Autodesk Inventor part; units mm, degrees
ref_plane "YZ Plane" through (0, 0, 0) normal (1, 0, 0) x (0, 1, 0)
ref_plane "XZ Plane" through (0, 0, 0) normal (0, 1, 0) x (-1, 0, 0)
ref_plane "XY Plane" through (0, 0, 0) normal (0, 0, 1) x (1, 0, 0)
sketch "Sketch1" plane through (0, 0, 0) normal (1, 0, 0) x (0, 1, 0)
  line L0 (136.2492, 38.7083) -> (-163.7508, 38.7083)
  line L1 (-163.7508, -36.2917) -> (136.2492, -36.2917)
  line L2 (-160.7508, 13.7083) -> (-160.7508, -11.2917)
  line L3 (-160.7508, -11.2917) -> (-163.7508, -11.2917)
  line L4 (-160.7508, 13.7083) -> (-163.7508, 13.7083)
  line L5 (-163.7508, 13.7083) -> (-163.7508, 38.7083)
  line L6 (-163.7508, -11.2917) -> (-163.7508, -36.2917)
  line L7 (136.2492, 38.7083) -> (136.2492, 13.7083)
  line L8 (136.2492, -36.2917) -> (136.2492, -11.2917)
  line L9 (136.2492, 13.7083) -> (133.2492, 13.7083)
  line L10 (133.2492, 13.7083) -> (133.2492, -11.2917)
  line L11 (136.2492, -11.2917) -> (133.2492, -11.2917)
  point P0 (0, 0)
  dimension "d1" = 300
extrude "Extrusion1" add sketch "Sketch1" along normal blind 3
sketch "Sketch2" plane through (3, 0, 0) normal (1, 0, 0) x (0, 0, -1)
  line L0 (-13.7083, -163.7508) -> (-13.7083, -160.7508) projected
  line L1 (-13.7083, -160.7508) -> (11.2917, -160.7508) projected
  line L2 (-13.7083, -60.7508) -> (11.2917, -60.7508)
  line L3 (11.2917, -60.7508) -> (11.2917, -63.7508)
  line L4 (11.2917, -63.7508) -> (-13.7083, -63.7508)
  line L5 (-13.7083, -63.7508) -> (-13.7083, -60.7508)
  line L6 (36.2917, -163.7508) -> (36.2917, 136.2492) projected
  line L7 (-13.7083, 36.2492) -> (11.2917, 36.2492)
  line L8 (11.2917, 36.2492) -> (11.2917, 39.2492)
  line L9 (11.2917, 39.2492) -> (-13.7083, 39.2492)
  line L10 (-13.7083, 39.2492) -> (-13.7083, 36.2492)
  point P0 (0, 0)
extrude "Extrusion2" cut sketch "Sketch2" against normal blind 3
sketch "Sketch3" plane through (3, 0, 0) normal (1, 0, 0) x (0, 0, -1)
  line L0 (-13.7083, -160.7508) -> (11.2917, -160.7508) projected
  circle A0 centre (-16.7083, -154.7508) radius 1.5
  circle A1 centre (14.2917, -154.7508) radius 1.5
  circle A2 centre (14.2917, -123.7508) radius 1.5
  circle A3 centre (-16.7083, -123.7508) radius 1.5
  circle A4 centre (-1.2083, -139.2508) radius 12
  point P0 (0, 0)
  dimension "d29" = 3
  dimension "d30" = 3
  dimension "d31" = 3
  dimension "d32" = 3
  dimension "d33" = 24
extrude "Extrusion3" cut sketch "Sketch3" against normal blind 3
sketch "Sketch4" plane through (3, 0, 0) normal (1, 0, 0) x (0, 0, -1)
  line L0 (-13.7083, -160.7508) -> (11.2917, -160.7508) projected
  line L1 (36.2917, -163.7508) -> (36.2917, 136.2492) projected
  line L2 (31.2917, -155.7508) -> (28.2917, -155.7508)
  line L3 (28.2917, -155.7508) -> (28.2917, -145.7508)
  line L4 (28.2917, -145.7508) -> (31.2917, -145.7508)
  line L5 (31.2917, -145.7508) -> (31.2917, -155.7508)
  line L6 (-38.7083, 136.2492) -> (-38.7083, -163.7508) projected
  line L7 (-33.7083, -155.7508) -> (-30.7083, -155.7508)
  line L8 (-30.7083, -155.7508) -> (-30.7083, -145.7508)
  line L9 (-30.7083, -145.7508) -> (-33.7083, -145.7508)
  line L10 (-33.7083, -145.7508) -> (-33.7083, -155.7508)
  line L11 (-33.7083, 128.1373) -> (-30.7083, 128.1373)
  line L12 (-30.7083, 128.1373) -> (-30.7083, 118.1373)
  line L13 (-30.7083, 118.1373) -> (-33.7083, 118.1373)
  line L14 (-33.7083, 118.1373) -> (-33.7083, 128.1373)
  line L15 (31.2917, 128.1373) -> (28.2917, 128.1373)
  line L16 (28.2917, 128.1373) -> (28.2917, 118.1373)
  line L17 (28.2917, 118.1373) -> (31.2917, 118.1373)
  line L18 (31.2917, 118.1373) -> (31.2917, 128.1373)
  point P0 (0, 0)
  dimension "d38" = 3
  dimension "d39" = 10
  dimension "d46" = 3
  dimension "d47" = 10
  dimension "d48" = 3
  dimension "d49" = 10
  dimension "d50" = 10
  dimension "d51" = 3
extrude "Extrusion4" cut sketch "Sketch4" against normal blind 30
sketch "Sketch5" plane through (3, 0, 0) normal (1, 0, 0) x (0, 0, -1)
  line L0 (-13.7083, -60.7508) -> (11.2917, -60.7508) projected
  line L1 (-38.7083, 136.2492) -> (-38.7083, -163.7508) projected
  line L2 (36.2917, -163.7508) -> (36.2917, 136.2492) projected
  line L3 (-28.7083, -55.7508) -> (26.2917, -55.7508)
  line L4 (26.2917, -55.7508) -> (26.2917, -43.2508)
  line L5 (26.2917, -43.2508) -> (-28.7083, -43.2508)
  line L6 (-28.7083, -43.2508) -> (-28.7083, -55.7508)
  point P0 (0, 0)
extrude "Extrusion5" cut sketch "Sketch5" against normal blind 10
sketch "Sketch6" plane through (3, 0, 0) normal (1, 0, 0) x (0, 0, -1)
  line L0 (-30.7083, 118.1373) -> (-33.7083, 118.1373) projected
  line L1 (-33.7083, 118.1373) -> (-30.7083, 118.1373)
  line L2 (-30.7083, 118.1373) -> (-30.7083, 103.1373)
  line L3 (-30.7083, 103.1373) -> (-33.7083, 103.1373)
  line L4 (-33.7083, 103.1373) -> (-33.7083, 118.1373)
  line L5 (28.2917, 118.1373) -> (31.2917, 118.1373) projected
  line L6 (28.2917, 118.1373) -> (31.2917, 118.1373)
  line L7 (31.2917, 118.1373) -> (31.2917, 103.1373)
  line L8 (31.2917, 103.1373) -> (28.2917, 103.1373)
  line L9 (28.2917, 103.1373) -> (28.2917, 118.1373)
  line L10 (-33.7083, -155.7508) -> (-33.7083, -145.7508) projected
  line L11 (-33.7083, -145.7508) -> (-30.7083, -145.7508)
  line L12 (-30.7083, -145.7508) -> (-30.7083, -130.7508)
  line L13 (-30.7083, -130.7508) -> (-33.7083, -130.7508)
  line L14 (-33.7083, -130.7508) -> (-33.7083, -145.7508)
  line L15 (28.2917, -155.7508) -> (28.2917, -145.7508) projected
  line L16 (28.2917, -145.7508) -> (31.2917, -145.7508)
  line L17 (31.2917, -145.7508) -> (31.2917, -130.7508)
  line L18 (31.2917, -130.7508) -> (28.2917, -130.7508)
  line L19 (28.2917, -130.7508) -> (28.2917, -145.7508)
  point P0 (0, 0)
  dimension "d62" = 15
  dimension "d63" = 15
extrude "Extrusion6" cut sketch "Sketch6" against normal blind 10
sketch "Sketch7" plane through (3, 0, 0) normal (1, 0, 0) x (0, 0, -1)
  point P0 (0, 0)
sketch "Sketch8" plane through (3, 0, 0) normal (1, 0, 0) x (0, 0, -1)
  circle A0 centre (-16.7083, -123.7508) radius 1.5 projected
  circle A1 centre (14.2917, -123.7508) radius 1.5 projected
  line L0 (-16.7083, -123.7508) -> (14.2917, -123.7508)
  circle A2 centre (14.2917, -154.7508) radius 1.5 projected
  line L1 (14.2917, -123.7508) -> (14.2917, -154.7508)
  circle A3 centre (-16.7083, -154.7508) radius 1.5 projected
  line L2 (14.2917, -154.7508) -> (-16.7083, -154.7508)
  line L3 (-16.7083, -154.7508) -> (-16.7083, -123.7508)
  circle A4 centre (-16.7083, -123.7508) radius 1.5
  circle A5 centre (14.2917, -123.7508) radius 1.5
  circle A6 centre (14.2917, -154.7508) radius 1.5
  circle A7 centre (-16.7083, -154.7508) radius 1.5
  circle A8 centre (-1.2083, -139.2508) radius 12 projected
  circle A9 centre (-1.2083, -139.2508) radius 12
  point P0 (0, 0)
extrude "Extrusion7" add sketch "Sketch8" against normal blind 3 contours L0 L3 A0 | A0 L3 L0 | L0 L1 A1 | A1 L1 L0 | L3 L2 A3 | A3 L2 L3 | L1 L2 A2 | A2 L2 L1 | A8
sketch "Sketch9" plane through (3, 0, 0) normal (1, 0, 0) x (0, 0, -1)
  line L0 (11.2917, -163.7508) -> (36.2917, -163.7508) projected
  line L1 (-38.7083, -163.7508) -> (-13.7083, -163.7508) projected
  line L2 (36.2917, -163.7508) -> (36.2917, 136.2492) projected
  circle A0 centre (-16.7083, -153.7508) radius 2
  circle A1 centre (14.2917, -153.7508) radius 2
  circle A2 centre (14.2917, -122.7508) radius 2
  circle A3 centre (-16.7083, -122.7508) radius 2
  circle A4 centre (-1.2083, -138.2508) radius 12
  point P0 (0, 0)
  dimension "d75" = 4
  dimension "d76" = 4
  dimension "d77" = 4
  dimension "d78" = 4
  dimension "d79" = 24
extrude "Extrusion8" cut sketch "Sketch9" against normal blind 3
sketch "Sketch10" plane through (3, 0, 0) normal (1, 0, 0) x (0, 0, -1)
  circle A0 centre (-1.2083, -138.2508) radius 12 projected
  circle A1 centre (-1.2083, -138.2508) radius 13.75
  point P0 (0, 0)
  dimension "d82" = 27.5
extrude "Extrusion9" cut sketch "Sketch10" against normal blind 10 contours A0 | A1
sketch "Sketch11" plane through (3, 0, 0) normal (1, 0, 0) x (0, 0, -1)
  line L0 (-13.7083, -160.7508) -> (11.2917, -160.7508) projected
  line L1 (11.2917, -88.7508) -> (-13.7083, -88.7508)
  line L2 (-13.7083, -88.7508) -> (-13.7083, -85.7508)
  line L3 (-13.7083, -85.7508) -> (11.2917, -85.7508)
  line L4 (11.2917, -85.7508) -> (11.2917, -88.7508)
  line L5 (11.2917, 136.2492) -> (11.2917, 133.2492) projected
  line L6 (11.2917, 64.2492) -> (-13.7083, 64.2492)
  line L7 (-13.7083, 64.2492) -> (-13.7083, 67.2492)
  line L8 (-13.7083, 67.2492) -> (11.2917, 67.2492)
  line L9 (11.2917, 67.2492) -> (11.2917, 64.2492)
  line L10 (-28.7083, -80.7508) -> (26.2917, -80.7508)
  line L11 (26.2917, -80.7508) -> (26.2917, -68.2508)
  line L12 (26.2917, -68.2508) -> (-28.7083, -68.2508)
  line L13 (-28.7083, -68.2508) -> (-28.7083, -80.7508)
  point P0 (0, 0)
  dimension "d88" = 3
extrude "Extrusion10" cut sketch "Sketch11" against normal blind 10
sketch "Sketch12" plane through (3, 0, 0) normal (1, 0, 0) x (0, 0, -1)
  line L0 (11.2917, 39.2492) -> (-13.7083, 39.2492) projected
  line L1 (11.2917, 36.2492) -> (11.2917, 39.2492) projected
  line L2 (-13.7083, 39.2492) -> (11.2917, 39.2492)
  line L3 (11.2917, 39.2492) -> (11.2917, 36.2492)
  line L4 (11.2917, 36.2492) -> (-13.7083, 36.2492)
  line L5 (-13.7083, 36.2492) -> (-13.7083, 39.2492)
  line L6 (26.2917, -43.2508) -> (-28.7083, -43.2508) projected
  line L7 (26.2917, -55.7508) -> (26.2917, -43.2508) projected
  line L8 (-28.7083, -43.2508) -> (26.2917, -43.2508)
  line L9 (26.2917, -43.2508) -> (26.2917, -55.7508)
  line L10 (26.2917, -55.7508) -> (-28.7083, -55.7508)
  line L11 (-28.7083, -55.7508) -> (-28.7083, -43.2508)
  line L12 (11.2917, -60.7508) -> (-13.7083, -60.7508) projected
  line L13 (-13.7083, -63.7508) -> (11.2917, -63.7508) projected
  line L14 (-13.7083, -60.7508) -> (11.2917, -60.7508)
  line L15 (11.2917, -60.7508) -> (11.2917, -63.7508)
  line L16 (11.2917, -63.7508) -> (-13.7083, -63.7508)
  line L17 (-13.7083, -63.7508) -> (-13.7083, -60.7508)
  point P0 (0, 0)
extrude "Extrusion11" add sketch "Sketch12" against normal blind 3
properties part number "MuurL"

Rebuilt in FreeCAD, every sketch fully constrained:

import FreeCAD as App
import Part
import Sketcher

V = App.Vector

doc = App.newDocument("Part")
body = doc.addObject("PartDesign::Body", "Body")

# Sketch on YZ plane
sketch1 = doc.addObject("Sketcher::SketchObject", "Sketch")
body.addObject(sketch1)
sketch1.AttachmentSupport = (doc.YZ_Plane, [""])
sketch1.MapMode = "FlatFace"
sketch1.addGeometry(Part.LineSegment(V(136.2492, 13.7083, 0), V(136.2492, 38.7083, 0)), False)
sketch1.addGeometry(Part.LineSegment(V(136.2492, 38.7083, 0), V(-163.7508, 38.7083, 0)), False)
sketch1.addGeometry(Part.LineSegment(V(-163.7508, 38.7083, 0), V(-163.7508, 13.7083, 0)), False)
sketch1.addGeometry(Part.LineSegment(V(-163.7508, 13.7083, 0), V(-160.7508, 13.7083, 0)), False)
sketch1.addGeometry(Part.LineSegment(V(-160.7508, 13.7083, 0), V(-160.7508, -11.2917, 0)), False)
sketch1.addGeometry(Part.LineSegment(V(-160.7508, -11.2917, 0), V(-163.7508, -11.2917, 0)), False)
sketch1.addGeometry(Part.LineSegment(V(-163.7508, -11.2917, 0), V(-163.7508, -36.2917, 0)), False)
sketch1.addGeometry(Part.LineSegment(V(-163.7508, -36.2917, 0), V(136.2492, -36.2917, 0)), False)
sketch1.addGeometry(Part.LineSegment(V(136.2492, -36.2917, 0), V(136.2492, -11.2917, 0)), False)
sketch1.addGeometry(Part.LineSegment(V(136.2492, -11.2917, 0), V(133.2492, -11.2917, 0)), False)
sketch1.addGeometry(Part.LineSegment(V(133.2492, -11.2917, 0), V(133.2492, 13.7083, 0)), False)
sketch1.addGeometry(Part.LineSegment(V(133.2492, 13.7083, 0), V(136.2492, 13.7083, 0)), False)
sketch1.addConstraint(Sketcher.Constraint("Coincident", 0, 2, 1, 1))
sketch1.addConstraint(Sketcher.Constraint("Coincident", 1, 2, 2, 1))
sketch1.addConstraint(Sketcher.Constraint("Coincident", 2, 2, 3, 1))
sketch1.addConstraint(Sketcher.Constraint("Coincident", 3, 2, 4, 1))
sketch1.addConstraint(Sketcher.Constraint("Coincident", 4, 2, 5, 1))
sketch1.addConstraint(Sketcher.Constraint("Coincident", 5, 2, 6, 1))
sketch1.addConstraint(Sketcher.Constraint("Coincident", 6, 2, 7, 1))
sketch1.addConstraint(Sketcher.Constraint("Coincident", 7, 2, 8, 1))
sketch1.addConstraint(Sketcher.Constraint("Coincident", 8, 2, 9, 1))
sketch1.addConstraint(Sketcher.Constraint("Coincident", 9, 2, 10, 1))
sketch1.addConstraint(Sketcher.Constraint("Coincident", 10, 2, 11, 1))
sketch1.addConstraint(Sketcher.Constraint("Coincident", 11, 2, 0, 1))
sketch1.addConstraint(Sketcher.Constraint("Vertical", 0))
sketch1.addConstraint(Sketcher.Constraint("Horizontal", 1))
sketch1.addConstraint(Sketcher.Constraint("Vertical", 2))
sketch1.addConstraint(Sketcher.Constraint("Horizontal", 3))
sketch1.addConstraint(Sketcher.Constraint("Vertical", 4))
sketch1.addConstraint(Sketcher.Constraint("Horizontal", 5))
sketch1.addConstraint(Sketcher.Constraint("Vertical", 6))
sketch1.addConstraint(Sketcher.Constraint("Horizontal", 7))
sketch1.addConstraint(Sketcher.Constraint("Vertical", 8))
sketch1.addConstraint(Sketcher.Constraint("Horizontal", 9))
sketch1.addConstraint(Sketcher.Constraint("Vertical", 10))
sketch1.addConstraint(Sketcher.Constraint("Horizontal", 11))
sketch1.addConstraint(Sketcher.Constraint("Horizontal", 5, 2, 8, 2))
sketch1.addConstraint(Sketcher.Constraint("Horizontal", 3, 2, 10, 2))
sketch1.addConstraint(Sketcher.Constraint("Vertical", 2, 2, 5, 2))
sketch1.addConstraint(Sketcher.Constraint("Vertical", 0, 2, 7, 2))
sketch1.addConstraint(Sketcher.Constraint("Equal", 5, 9))
sketch1.addConstraint(Sketcher.Constraint("Equal", 2, 4))
sketch1.addConstraint(Sketcher.Constraint("Equal", 4, 6))
sketch1.addConstraint(Sketcher.Constraint("DistanceX", 1, 2, 1, 1, 300.0))
sketch1.addConstraint(Sketcher.Constraint("DistanceX", 3, 1, 3, 2, 3.0))
sketch1.addConstraint(Sketcher.Constraint("DistanceY", 0, 1, 0, 2, 25.0))
sketch1.addConstraint(Sketcher.Constraint("DistanceX", -1, 1, 0, 2, 136.2492))
sketch1.addConstraint(Sketcher.Constraint("DistanceY", -1, 1, 0, 2, 38.7083))
pad1 = doc.addObject("PartDesign::Pad", "Pad")
body.addObject(pad1)
pad1.Profile = sketch1
pad1.Length = 3

# Sketch on YZ plane
sketch2 = doc.addObject("Sketcher::SketchObject", "Sketch001")
body.addObject(sketch2)
sketch2.AttachmentSupport = (doc.YZ_Plane, [""])
sketch2.MapMode = "FlatFace"
sketch2.AttachmentOffset = App.Placement(V(0, 0, 3), App.Rotation())
sketch2.addGeometry(Part.LineSegment(V(-60.7508, -11.2917, 0), V(-60.7508, 13.7083, 0)), False)
sketch2.addGeometry(Part.LineSegment(V(-60.7508, 13.7083, 0), V(-63.7508, 13.7083, 0)), False)
sketch2.addGeometry(Part.LineSegment(V(-63.7508, 13.7083, 0), V(-63.7508, -11.2917, 0)), False)
sketch2.addGeometry(Part.LineSegment(V(-63.7508, -11.2917, 0), V(-60.7508, -11.2917, 0)), False)
sketch2.addGeometry(Part.LineSegment(V(39.2492, 13.7083, 0), V(36.2492, 13.7083, 0)), False)
sketch2.addGeometry(Part.LineSegment(V(36.2492, 13.7083, 0), V(36.2492, -11.2917, 0)), False)
sketch2.addGeometry(Part.LineSegment(V(36.2492, -11.2917, 0), V(39.2492, -11.2917, 0)), False)
sketch2.addGeometry(Part.LineSegment(V(39.2492, -11.2917, 0), V(39.2492, 13.7083, 0)), False)
sketch2.addConstraint(Sketcher.Constraint("Coincident", 0, 2, 1, 1))
sketch2.addConstraint(Sketcher.Constraint("Coincident", 1, 2, 2, 1))
sketch2.addConstraint(Sketcher.Constraint("Coincident", 2, 2, 3, 1))
sketch2.addConstraint(Sketcher.Constraint("Coincident", 3, 2, 0, 1))
sketch2.addConstraint(Sketcher.Constraint("Coincident", 4, 2, 5, 1))
sketch2.addConstraint(Sketcher.Constraint("Coincident", 5, 2, 6, 1))
sketch2.addConstraint(Sketcher.Constraint("Coincident", 6, 2, 7, 1))
sketch2.addConstraint(Sketcher.Constraint("Coincident", 7, 2, 4, 1))
sketch2.addConstraint(Sketcher.Constraint("Vertical", 0))
sketch2.addConstraint(Sketcher.Constraint("Horizontal", 1))
sketch2.addConstraint(Sketcher.Constraint("Vertical", 2))
sketch2.addConstraint(Sketcher.Constraint("Horizontal", 3))
sketch2.addConstraint(Sketcher.Constraint("Horizontal", 4))
sketch2.addConstraint(Sketcher.Constraint("Vertical", 5))
sketch2.addConstraint(Sketcher.Constraint("Horizontal", 6))
sketch2.addConstraint(Sketcher.Constraint("Vertical", 7))
sketch2.addConstraint(Sketcher.Constraint("Horizontal", 1, 2, 4, 2))
sketch2.addConstraint(Sketcher.Constraint("Horizontal", 3, 2, 5, 2))
sketch2.addConstraint(Sketcher.Constraint("Equal", 3, 4))
sketch2.addConstraint(Sketcher.Constraint("DistanceX", 1, 2, 1, 1, 3.0))
sketch2.addConstraint(Sketcher.Constraint("DistanceY", 0, 1, 0, 2, 25.0))
sketch2.addConstraint(Sketcher.Constraint("DistanceX", 0, 2, 4, 2, 97.0))
sketch2.addConstraint(Sketcher.Constraint("DistanceX", 0, 2, -1, 1, 60.7508))
sketch2.addConstraint(Sketcher.Constraint("DistanceY", -1, 1, 0, 2, 13.7083))
pocket1 = doc.addObject("PartDesign::Pocket", "Pocket")
body.addObject(pocket1)
pocket1.Profile = sketch2
pocket1.Length = 3

# Sketch on YZ plane
sketch3 = doc.addObject("Sketcher::SketchObject", "Sketch002")
body.addObject(sketch3)
sketch3.AttachmentSupport = (doc.YZ_Plane, [""])
sketch3.MapMode = "FlatFace"
sketch3.AttachmentOffset = App.Placement(V(0, 0, 3), App.Rotation())
sketch3.addGeometry(Part.Circle(V(-154.7508, 16.7083, 0), V(0, 0, 1), 1.5), False)
sketch3.addGeometry(Part.Circle(V(-154.7508, -14.2917, 0), V(0, 0, 1), 1.5), False)
sketch3.addGeometry(Part.Circle(V(-123.7508, -14.2917, 0), V(0, 0, 1), 1.5), False)
sketch3.addGeometry(Part.Circle(V(-123.7508, 16.7083, 0), V(0, 0, 1), 1.5), False)
sketch3.addGeometry(Part.Circle(V(-139.2508, 1.2083, 0), V(0, 0, 1), 12), False)
sketch3.addConstraint(Sketcher.Constraint("Equal", 0, 1))
sketch3.addConstraint(Sketcher.Constraint("Equal", 1, 2))
sketch3.addConstraint(Sketcher.Constraint("Equal", 2, 3))
sketch3.addConstraint(Sketcher.Constraint("Horizontal", 1, 3, 2, 3))
sketch3.addConstraint(Sketcher.Constraint("Horizontal", 0, 3, 3, 3))
sketch3.addConstraint(Sketcher.Constraint("Vertical", 0, 3, 1, 3))
sketch3.addConstraint(Sketcher.Constraint("Vertical", 2, 3, 3, 3))
sketch3.addConstraint(Sketcher.Constraint("Diameter", 0, 3.0))
sketch3.addConstraint(Sketcher.Constraint("Diameter", 4, 24.0))
sketch3.addConstraint(Sketcher.Constraint("DistanceY", 1, 3, 0, 3, 31.0))
sketch3.addConstraint(Sketcher.Constraint("DistanceX", 1, 3, 2, 3, 31.0))
sketch3.addConstraint(Sketcher.Constraint("DistanceX", 1, 3, 4, 3, 15.5))
sketch3.addConstraint(Sketcher.Constraint("DistanceY", 1, 3, 4, 3, 15.5))
sketch3.addConstraint(Sketcher.Constraint("DistanceX", 0, 3, -1, 1, 154.7508))
sketch3.addConstraint(Sketcher.Constraint("DistanceY", -1, 1, 0, 3, 16.7083))
pocket2 = doc.addObject("PartDesign::Pocket", "Pocket001")
body.addObject(pocket2)
pocket2.Profile = sketch3
pocket2.Length = 3

# Sketch on YZ plane
sketch4 = doc.addObject("Sketcher::SketchObject", "Sketch003")
body.addObject(sketch4)
sketch4.AttachmentSupport = (doc.YZ_Plane, [""])
sketch4.MapMode = "FlatFace"
sketch4.AttachmentOffset = App.Placement(V(0, 0, 3), App.Rotation())
sketch4.addGeometry(Part.LineSegment(V(-155.7508, -28.2917, 0), V(-155.7508, -31.2917, 0)), False)
sketch4.addGeometry(Part.LineSegment(V(-155.7508, -31.2917, 0), V(-145.7508, -31.2917, 0)), False)
sketch4.addGeometry(Part.LineSegment(V(-145.7508, -31.2917, 0), V(-145.7508, -28.2917, 0)), False)
sketch4.addGeometry(Part.LineSegment(V(-145.7508, -28.2917, 0), V(-155.7508, -28.2917, 0)), False)
sketch4.addGeometry(Part.LineSegment(V(-145.7508, 33.7083, 0), V(-155.7508, 33.7083, 0)), False)
sketch4.addGeometry(Part.LineSegment(V(-155.7508, 33.7083, 0), V(-155.7508, 30.7083, 0)), False)
sketch4.addGeometry(Part.LineSegment(V(-155.7508, 30.7083, 0), V(-145.7508, 30.7083, 0)), False)
sketch4.addGeometry(Part.LineSegment(V(-145.7508, 30.7083, 0), V(-145.7508, 33.7083, 0)), False)
sketch4.addGeometry(Part.LineSegment(V(128.1373, 30.7083, 0), V(128.1373, 33.7083, 0)), False)
sketch4.addGeometry(Part.LineSegment(V(128.1373, 33.7083, 0), V(118.1373, 33.7083, 0)), False)
sketch4.addGeometry(Part.LineSegment(V(118.1373, 33.7083, 0), V(118.1373, 30.7083, 0)), False)
sketch4.addGeometry(Part.LineSegment(V(118.1373, 30.7083, 0), V(128.1373, 30.7083, 0)), False)
sketch4.addGeometry(Part.LineSegment(V(118.1373, -31.2917, 0), V(128.1373, -31.2917, 0)), False)
sketch4.addGeometry(Part.LineSegment(V(128.1373, -31.2917, 0), V(128.1373, -28.2917, 0)), False)
sketch4.addGeometry(Part.LineSegment(V(128.1373, -28.2917, 0), V(118.1373, -28.2917, 0)), False)
sketch4.addGeometry(Part.LineSegment(V(118.1373, -28.2917, 0), V(118.1373, -31.2917, 0)), False)
sketch4.addConstraint(Sketcher.Constraint("Coincident", 0, 2, 1, 1))
sketch4.addConstraint(Sketcher.Constraint("Coincident", 1, 2, 2, 1))
sketch4.addConstraint(Sketcher.Constraint("Coincident", 2, 2, 3, 1))
sketch4.addConstraint(Sketcher.Constraint("Coincident", 3, 2, 0, 1))
sketch4.addConstraint(Sketcher.Constraint("Coincident", 4, 2, 5, 1))
sketch4.addConstraint(Sketcher.Constraint("Coincident", 5, 2, 6, 1))
sketch4.addConstraint(Sketcher.Constraint("Coincident", 6, 2, 7, 1))
sketch4.addConstraint(Sketcher.Constraint("Coincident", 7, 2, 4, 1))
sketch4.addConstraint(Sketcher.Constraint("Coincident", 8, 2, 9, 1))
sketch4.addConstraint(Sketcher.Constraint("Coincident", 9, 2, 10, 1))
sketch4.addConstraint(Sketcher.Constraint("Coincident", 10, 2, 11, 1))
sketch4.addConstraint(Sketcher.Constraint("Coincident", 11, 2, 8, 1))
sketch4.addConstraint(Sketcher.Constraint("Coincident", 12, 2, 13, 1))
sketch4.addConstraint(Sketcher.Constraint("Coincident", 13, 2, 14, 1))
sketch4.addConstraint(Sketcher.Constraint("Coincident", 14, 2, 15, 1))
sketch4.addConstraint(Sketcher.Constraint("Coincident", 15, 2, 12, 1))
sketch4.addConstraint(Sketcher.Constraint("Vertical", 0))
sketch4.addConstraint(Sketcher.Constraint("Horizontal", 1))
sketch4.addConstraint(Sketcher.Constraint("Vertical", 2))
sketch4.addConstraint(Sketcher.Constraint("Horizontal", 3))
sketch4.addConstraint(Sketcher.Constraint("Horizontal", 4))
sketch4.addConstraint(Sketcher.Constraint("Vertical", 5))
sketch4.addConstraint(Sketcher.Constraint("Horizontal", 6))
sketch4.addConstraint(Sketcher.Constraint("Vertical", 7))
sketch4.addConstraint(Sketcher.Constraint("Vertical", 8))
sketch4.addConstraint(Sketcher.Constraint("Horizontal", 9))
sketch4.addConstraint(Sketcher.Constraint("Vertical", 10))
sketch4.addConstraint(Sketcher.Constraint("Horizontal", 11))
sketch4.addConstraint(Sketcher.Constraint("Horizontal", 12))
sketch4.addConstraint(Sketcher.Constraint("Vertical", 13))
sketch4.addConstraint(Sketcher.Constraint("Horizontal", 14))
sketch4.addConstraint(Sketcher.Constraint("Vertical", 15))
sketch4.addConstraint(Sketcher.Constraint("Horizontal", 7, 2, 8, 2))
sketch4.addConstraint(Sketcher.Constraint("Horizontal", 6, 2, 10, 2))
sketch4.addConstraint(Sketcher.Constraint("Horizontal", 1, 2, 12, 2))
sketch4.addConstraint(Sketcher.Constraint("Horizontal", 3, 2, 13, 2))
sketch4.addConstraint(Sketcher.Constraint("Vertical", 3, 2, 4, 2))
sketch4.addConstraint(Sketcher.Constraint("Vertical", 2, 2, 6, 2))
sketch4.addConstraint(Sketcher.Constraint("Vertical", 11, 2, 12, 2))
sketch4.addConstraint(Sketcher.Constraint("Vertical", 10, 2, 14, 2))
sketch4.addConstraint(Sketcher.Constraint("Equal", 6, 9))
sketch4.addConstraint(Sketcher.Constraint("Equal", 2, 5))
sketch4.addConstraint(Sketcher.Constraint("DistanceX", 1, 1, 1, 2, 10.0))
sketch4.addConstraint(Sketcher.Constraint("DistanceY", 0, 2, 0, 1, 3.0))
sketch4.addConstraint(Sketcher.Constraint("DistanceY", 3, 2, 4, 2, 62.0))
sketch4.addConstraint(Sketcher.Constraint("DistanceX", 7, 2, 8, 2, 273.888))
sketch4.addConstraint(Sketcher.Constraint("DistanceX", 0, 2, -1, 1, 155.7508))
sketch4.addConstraint(Sketcher.Constraint("DistanceY", 0, 2, -1, 1, 31.2917))
pocket3 = doc.addObject("PartDesign::Pocket", "Pocket002")
body.addObject(pocket3)
pocket3.Profile = sketch4
pocket3.Length = 30

# Sketch on YZ plane
sketch5 = doc.addObject("Sketcher::SketchObject", "Sketch004")
body.addObject(sketch5)
sketch5.AttachmentSupport = (doc.YZ_Plane, [""])
sketch5.MapMode = "FlatFace"
sketch5.AttachmentOffset = App.Placement(V(0, 0, 3), App.Rotation())
sketch5.addGeometry(Part.LineSegment(V(-43.2508, 28.7083, 0), V(-55.7508, 28.7083, 0)), False)
sketch5.addGeometry(Part.LineSegment(V(-55.7508, 28.7083, 0), V(-55.7508, -26.2917, 0)), False)
sketch5.addGeometry(Part.LineSegment(V(-55.7508, -26.2917, 0), V(-43.2508, -26.2917, 0)), False)
sketch5.addGeometry(Part.LineSegment(V(-43.2508, -26.2917, 0), V(-43.2508, 28.7083, 0)), False)
sketch5.addConstraint(Sketcher.Constraint("Coincident", 0, 2, 1, 1))
sketch5.addConstraint(Sketcher.Constraint("Coincident", 1, 2, 2, 1))
sketch5.addConstraint(Sketcher.Constraint("Coincident", 2, 2, 3, 1))
sketch5.addConstraint(Sketcher.Constraint("Coincident", 3, 2, 0, 1))
sketch5.addConstraint(Sketcher.Constraint("Horizontal", 0))
sketch5.addConstraint(Sketcher.Constraint("Vertical", 1))
sketch5.addConstraint(Sketcher.Constraint("Horizontal", 2))
sketch5.addConstraint(Sketcher.Constraint("Vertical", 3))
sketch5.addConstraint(Sketcher.Constraint("DistanceY", 1, 2, 1, 1, 55.0))
sketch5.addConstraint(Sketcher.Constraint("DistanceX", 0, 2, 0, 1, 12.5))
sketch5.addConstraint(Sketcher.Constraint("DistanceX", 0, 2, -1, 1, 55.7508))
sketch5.addConstraint(Sketcher.Constraint("DistanceY", -1, 1, 0, 2, 28.7083))
pocket4 = doc.addObject("PartDesign::Pocket", "Pocket003")
body.addObject(pocket4)
pocket4.Profile = sketch5
pocket4.Length = 10

# Sketch on YZ plane
sketch6 = doc.addObject("Sketcher::SketchObject", "Sketch005")
body.addObject(sketch6)
sketch6.AttachmentSupport = (doc.YZ_Plane, [""])
sketch6.MapMode = "FlatFace"
sketch6.AttachmentOffset = App.Placement(V(0, 0, 3), App.Rotation())
sketch6.addGeometry(Part.LineSegment(V(103.1373, 30.7083, 0), V(118.1373, 30.7083, 0)), False)
sketch6.addGeometry(Part.LineSegment(V(118.1373, 30.7083, 0), V(118.1373, 33.7083, 0)), False)
sketch6.addGeometry(Part.LineSegment(V(118.1373, 33.7083, 0), V(103.1373, 33.7083, 0)), False)
sketch6.addGeometry(Part.LineSegment(V(103.1373, 33.7083, 0), V(103.1373, 30.7083, 0)), False)
sketch6.addGeometry(Part.LineSegment(V(118.1373, -31.2917, 0), V(118.1373, -28.2917, 0)), False)
sketch6.addGeometry(Part.LineSegment(V(118.1373, -28.2917, 0), V(103.1373, -28.2917, 0)), False)
sketch6.addGeometry(Part.LineSegment(V(103.1373, -28.2917, 0), V(103.1373, -31.2917, 0)), False)
sketch6.addGeometry(Part.LineSegment(V(103.1373, -31.2917, 0), V(118.1373, -31.2917, 0)), False)
sketch6.addGeometry(Part.LineSegment(V(-130.7508, 33.7083, 0), V(-145.7508, 33.7083, 0)), False)
sketch6.addGeometry(Part.LineSegment(V(-145.7508, 33.7083, 0), V(-145.7508, 30.7083, 0)), False)
sketch6.addGeometry(Part.LineSegment(V(-145.7508, 30.7083, 0), V(-130.7508, 30.7083, 0)), False)
sketch6.addGeometry(Part.LineSegment(V(-130.7508, 30.7083, 0), V(-130.7508, 33.7083, 0)), False)
sketch6.addGeometry(Part.LineSegment(V(-130.7508, -28.2917, 0), V(-145.7508, -28.2917, 0)), False)
sketch6.addGeometry(Part.LineSegment(V(-145.7508, -28.2917, 0), V(-145.7508, -31.2917, 0)), False)
sketch6.addGeometry(Part.LineSegment(V(-145.7508, -31.2917, 0), V(-130.7508, -31.2917, 0)), False)
sketch6.addGeometry(Part.LineSegment(V(-130.7508, -31.2917, 0), V(-130.7508, -28.2917, 0)), False)
sketch6.addConstraint(Sketcher.Constraint("Coincident", 0, 2, 1, 1))
sketch6.addConstraint(Sketcher.Constraint("Coincident", 1, 2, 2, 1))
sketch6.addConstraint(Sketcher.Constraint("Coincident", 2, 2, 3, 1))
sketch6.addConstraint(Sketcher.Constraint("Coincident", 3, 2, 0, 1))
sketch6.addConstraint(Sketcher.Constraint("Coincident", 4, 2, 5, 1))
sketch6.addConstraint(Sketcher.Constraint("Coincident", 5, 2, 6, 1))
sketch6.addConstraint(Sketcher.Constraint("Coincident", 6, 2, 7, 1))
sketch6.addConstraint(Sketcher.Constraint("Coincident", 7, 2, 4, 1))
sketch6.addConstraint(Sketcher.Constraint("Coincident", 8, 2, 9, 1))
sketch6.addConstraint(Sketcher.Constraint("Coincident", 9, 2, 10, 1))
sketch6.addConstraint(Sketcher.Constraint("Coincident", 10, 2, 11, 1))
sketch6.addConstraint(Sketcher.Constraint("Coincident", 11, 2, 8, 1))
sketch6.addConstraint(Sketcher.Constraint("Coincident", 12, 2, 13, 1))
sketch6.addConstraint(Sketcher.Constraint("Coincident", 13, 2, 14, 1))
sketch6.addConstraint(Sketcher.Constraint("Coincident", 14, 2, 15, 1))
sketch6.addConstraint(Sketcher.Constraint("Coincident", 15, 2, 12, 1))
sketch6.addConstraint(Sketcher.Constraint("Horizontal", 0))
sketch6.addConstraint(Sketcher.Constraint("Vertical", 1))
sketch6.addConstraint(Sketcher.Constraint("Horizontal", 2))
sketch6.addConstraint(Sketcher.Constraint("Vertical", 3))
sketch6.addConstraint(Sketcher.Constraint("Vertical", 4))
sketch6.addConstraint(Sketcher.Constraint("Horizontal", 5))
sketch6.addConstraint(Sketcher.Constraint("Vertical", 6))
sketch6.addConstraint(Sketcher.Constraint("Horizontal", 7))
sketch6.addConstraint(Sketcher.Constraint("Horizontal", 8))
sketch6.addConstraint(Sketcher.Constraint("Vertical", 9))
sketch6.addConstraint(Sketcher.Constraint("Horizontal", 10))
sketch6.addConstraint(Sketcher.Constraint("Vertical", 11))
sketch6.addConstraint(Sketcher.Constraint("Horizontal", 12))
sketch6.addConstraint(Sketcher.Constraint("Vertical", 13))
sketch6.addConstraint(Sketcher.Constraint("Horizontal", 14))
sketch6.addConstraint(Sketcher.Constraint("Vertical", 15))
sketch6.addConstraint(Sketcher.Constraint("Horizontal", 2, 2, 8, 2))
sketch6.addConstraint(Sketcher.Constraint("Horizontal", 3, 2, 9, 2))
sketch6.addConstraint(Sketcher.Constraint("Horizontal", 5, 2, 12, 2))
sketch6.addConstraint(Sketcher.Constraint("Horizontal", 7, 2, 13, 2))
sketch6.addConstraint(Sketcher.Constraint("Vertical", 1, 2, 4, 2))
sketch6.addConstraint(Sketcher.Constraint("Vertical", 3, 2, 5, 2))
sketch6.addConstraint(Sketcher.Constraint("Vertical", 9, 2, 12, 2))
sketch6.addConstraint(Sketcher.Constraint("Vertical", 11, 2, 14, 2))
sketch6.addConstraint(Sketcher.Constraint("Equal", 7, 8))
sketch6.addConstraint(Sketcher.Constraint("Equal", 3, 4))
sketch6.addConstraint(Sketcher.Constraint("DistanceX", 0, 1, 0, 2, 15.0))
sketch6.addConstraint(Sketcher.Constraint("DistanceY", 1, 1, 1, 2, 3.0))
sketch6.addConstraint(Sketcher.Constraint("DistanceY", 4, 2, 0, 2, 59.0))
sketch6.addConstraint(Sketcher.Constraint("DistanceX", 8, 2, 2, 2, 248.888))
sketch6.addConstraint(Sketcher.Constraint("DistanceX", -1, 1, 0, 2, 118.1373))
sketch6.addConstraint(Sketcher.Constraint("DistanceY", -1, 1, 0, 2, 30.7083))
pocket5 = doc.addObject("PartDesign::Pocket", "Pocket004")
body.addObject(pocket5)
pocket5.Profile = sketch6
pocket5.Length = 10

# Sketch on YZ plane
sketch7 = doc.addObject("Sketcher::SketchObject", "Sketch006")
body.addObject(sketch7)
sketch7.AttachmentSupport = (doc.YZ_Plane, [""])
sketch7.MapMode = "FlatFace"
sketch7.AttachmentOffset = App.Placement(V(0, 0, 3), App.Rotation())
sketch7.addGeometry(Part.Circle(V(-123.7508, 16.7083, 0), V(0, 0, 1), 1.5), False)
sketch7.addGeometry(Part.Circle(V(-123.7508, -14.2917, 0), V(0, 0, 1), 1.5), False)
sketch7.addGeometry(Part.Circle(V(-154.7508, 16.7083, 0), V(0, 0, 1), 1.5), False)
sketch7.addGeometry(Part.Circle(V(-154.7508, -14.2917, 0), V(0, 0, 1), 1.5), False)
sketch7.addGeometry(Part.Circle(V(-139.2508, 1.2083, 0), V(0, 0, 1), 12), False)
sketch7.addConstraint(Sketcher.Constraint("Equal", 0, 1))
sketch7.addConstraint(Sketcher.Constraint("Equal", 1, 2))
sketch7.addConstraint(Sketcher.Constraint("Equal", 2, 3))
sketch7.addConstraint(Sketcher.Constraint("Horizontal", 0, 3, 2, 3))
sketch7.addConstraint(Sketcher.Constraint("Horizontal", 1, 3, 3, 3))
sketch7.addConstraint(Sketcher.Constraint("Vertical", 0, 3, 1, 3))
sketch7.addConstraint(Sketcher.Constraint("Vertical", 2, 3, 3, 3))
sketch7.addConstraint(Sketcher.Constraint("Diameter", 0, 3.0))
sketch7.addConstraint(Sketcher.Constraint("Diameter", 4, 24.0))
sketch7.addConstraint(Sketcher.Constraint("DistanceY", 1, 3, 0, 3, 31.0))
sketch7.addConstraint(Sketcher.Constraint("DistanceX", 2, 3, 0, 3, 31.0))
sketch7.addConstraint(Sketcher.Constraint("DistanceX", 4, 3, 1, 3, 15.5))
sketch7.addConstraint(Sketcher.Constraint("DistanceY", 1, 3, 4, 3, 15.5))
sketch7.addConstraint(Sketcher.Constraint("DistanceX", 0, 3, -1, 1, 123.7508))
sketch7.addConstraint(Sketcher.Constraint("DistanceY", -1, 1, 0, 3, 16.7083))
pad2 = doc.addObject("PartDesign::Pad", "Pad001")
body.addObject(pad2)
pad2.Profile = sketch7
pad2.Length = 3
pad2.Reversed = True

# Sketch on YZ plane
sketch8 = doc.addObject("Sketcher::SketchObject", "Sketch007")
body.addObject(sketch8)
sketch8.AttachmentSupport = (doc.YZ_Plane, [""])
sketch8.MapMode = "FlatFace"
sketch8.AttachmentOffset = App.Placement(V(0, 0, 3), App.Rotation())
sketch8.addGeometry(Part.Circle(V(-153.7508, 16.7083, 0), V(0, 0, 1), 2), False)
sketch8.addGeometry(Part.Circle(V(-153.7508, -14.2917, 0), V(0, 0, 1), 2), False)
sketch8.addGeometry(Part.Circle(V(-122.7508, -14.2917, 0), V(0, 0, 1), 2), False)
sketch8.addGeometry(Part.Circle(V(-122.7508, 16.7083, 0), V(0, 0, 1), 2), False)
sketch8.addGeometry(Part.Circle(V(-138.2508, 1.2083, 0), V(0, 0, 1), 12), False)
sketch8.addConstraint(Sketcher.Constraint("Equal", 0, 1))
sketch8.addConstraint(Sketcher.Constraint("Equal", 1, 2))
sketch8.addConstraint(Sketcher.Constraint("Equal", 2, 3))
sketch8.addConstraint(Sketcher.Constraint("Horizontal", 1, 3, 2, 3))
sketch8.addConstraint(Sketcher.Constraint("Horizontal", 0, 3, 3, 3))
sketch8.addConstraint(Sketcher.Constraint("Vertical", 0, 3, 1, 3))
sketch8.addConstraint(Sketcher.Constraint("Vertical", 2, 3, 3, 3))
sketch8.addConstraint(Sketcher.Constraint("Diameter", 0, 4.0))
sketch8.addConstraint(Sketcher.Constraint("Diameter", 4, 24.0))
sketch8.addConstraint(Sketcher.Constraint("DistanceY", 1, 3, 0, 3, 31.0))
sketch8.addConstraint(Sketcher.Constraint("DistanceX", 1, 3, 2, 3, 31.0))
sketch8.addConstraint(Sketcher.Constraint("DistanceX", 1, 3, 4, 3, 15.5))
sketch8.addConstraint(Sketcher.Constraint("DistanceY", 1, 3, 4, 3, 15.5))
sketch8.addConstraint(Sketcher.Constraint("DistanceX", 0, 3, -1, 1, 153.7508))
sketch8.addConstraint(Sketcher.Constraint("DistanceY", -1, 1, 0, 3, 16.7083))
pocket6 = doc.addObject("PartDesign::Pocket", "Pocket005")
body.addObject(pocket6)
pocket6.Profile = sketch8
pocket6.Length = 3

# Sketch on YZ plane
sketch9 = doc.addObject("Sketcher::SketchObject", "Sketch008")
body.addObject(sketch9)
sketch9.AttachmentSupport = (doc.YZ_Plane, [""])
sketch9.MapMode = "FlatFace"
sketch9.AttachmentOffset = App.Placement(V(0, 0, 3), App.Rotation())
sketch9.addGeometry(Part.Circle(V(-138.2508, 1.2083, 0), V(0, 0, 1), 13.75), False)
sketch9.addConstraint(Sketcher.Constraint("Diameter", 0, 27.5))
sketch9.addConstraint(Sketcher.Constraint("DistanceX", 0, 3, -1, 1, 138.2508))
sketch9.addConstraint(Sketcher.Constraint("DistanceY", -1, 1, 0, 3, 1.2083))
pocket7 = doc.addObject("PartDesign::Pocket", "Pocket006")
body.addObject(pocket7)
pocket7.Profile = sketch9
pocket7.Length = 10

# Sketch on YZ plane
sketch10 = doc.addObject("Sketcher::SketchObject", "Sketch009")
body.addObject(sketch10)
sketch10.AttachmentSupport = (doc.YZ_Plane, [""])
sketch10.MapMode = "FlatFace"
sketch10.AttachmentOffset = App.Placement(V(0, 0, 3), App.Rotation())
sketch10.addGeometry(Part.LineSegment(V(-88.7508, 13.7083, 0), V(-88.7508, -11.2917, 0)), False)
sketch10.addGeometry(Part.LineSegment(V(-88.7508, -11.2917, 0), V(-85.7508, -11.2917, 0)), False)
sketch10.addGeometry(Part.LineSegment(V(-85.7508, -11.2917, 0), V(-85.7508, 13.7083, 0)), False)
sketch10.addGeometry(Part.LineSegment(V(-85.7508, 13.7083, 0), V(-88.7508, 13.7083, 0)), False)
sketch10.addGeometry(Part.LineSegment(V(64.2492, 13.7083, 0), V(64.2492, -11.2917, 0)), False)
sketch10.addGeometry(Part.LineSegment(V(64.2492, -11.2917, 0), V(67.2492, -11.2917, 0)), False)
sketch10.addGeometry(Part.LineSegment(V(67.2492, -11.2917, 0), V(67.2492, 13.7083, 0)), False)
sketch10.addGeometry(Part.LineSegment(V(67.2492, 13.7083, 0), V(64.2492, 13.7083, 0)), False)
sketch10.addGeometry(Part.LineSegment(V(-68.2508, 28.7083, 0), V(-80.7508, 28.7083, 0)), False)
sketch10.addGeometry(Part.LineSegment(V(-80.7508, 28.7083, 0), V(-80.7508, -26.2917, 0)), False)
sketch10.addGeometry(Part.LineSegment(V(-80.7508, -26.2917, 0), V(-68.2508, -26.2917, 0)), False)
sketch10.addGeometry(Part.LineSegment(V(-68.2508, -26.2917, 0), V(-68.2508, 28.7083, 0)), False)
sketch10.addConstraint(Sketcher.Constraint("Coincident", 0, 2, 1, 1))
sketch10.addConstraint(Sketcher.Constraint("Coincident", 1, 2, 2, 1))
sketch10.addConstraint(Sketcher.Constraint("Coincident", 2, 2, 3, 1))
sketch10.addConstraint(Sketcher.Constraint("Coincident", 3, 2, 0, 1))
sketch10.addConstraint(Sketcher.Constraint("Coincident", 4, 2, 5, 1))
sketch10.addConstraint(Sketcher.Constraint("Coincident", 5, 2, 6, 1))
sketch10.addConstraint(Sketcher.Constraint("Coincident", 6, 2, 7, 1))
sketch10.addConstraint(Sketcher.Constraint("Coincident", 7, 2, 4, 1))
sketch10.addConstraint(Sketcher.Constraint("Coincident", 8, 2, 9, 1))
sketch10.addConstraint(Sketcher.Constraint("Coincident", 9, 2, 10, 1))
sketch10.addConstraint(Sketcher.Constraint("Coincident", 10, 2, 11, 1))
sketch10.addConstraint(Sketcher.Constraint("Coincident", 11, 2, 8, 1))
sketch10.addConstraint(Sketcher.Constraint("Vertical", 0))
sketch10.addConstraint(Sketcher.Constraint("Horizontal", 1))
sketch10.addConstraint(Sketcher.Constraint("Vertical", 2))
sketch10.addConstraint(Sketcher.Constraint("Horizontal", 3))
sketch10.addConstraint(Sketcher.Constraint("Vertical", 4))
sketch10.addConstraint(Sketcher.Constraint("Horizontal", 5))
sketch10.addConstraint(Sketcher.Constraint("Vertical", 6))
sketch10.addConstraint(Sketcher.Constraint("Horizontal", 7))
sketch10.addConstraint(Sketcher.Constraint("Horizontal", 8))
sketch10.addConstraint(Sketcher.Constraint("Vertical", 9))
sketch10.addConstraint(Sketcher.Constraint("Horizontal", 10))
sketch10.addConstraint(Sketcher.Constraint("Vertical", 11))
sketch10.addConstraint(Sketcher.Constraint("Horizontal", 1, 2, 4, 2))
sketch10.addConstraint(Sketcher.Constraint("Horizontal", 3, 2, 6, 2))
sketch10.addConstraint(Sketcher.Constraint("Equal", 3, 5))
sketch10.addConstraint(Sketcher.Constraint("DistanceX", 1, 1, 1, 2, 3.0))
sketch10.addConstraint(Sketcher.Constraint("DistanceY", 0, 2, 0, 1, 25.0))
sketch10.addConstraint(Sketcher.Constraint("DistanceY", 9, 2, 9, 1, 55.0))
sketch10.addConstraint(Sketcher.Constraint("DistanceX", 8, 2, 8, 1, 12.5))
sketch10.addConstraint(Sketcher.Constraint("DistanceX", 1, 2, 4, 2, 150.0))
sketch10.addConstraint(Sketcher.Constraint("DistanceX", 2, 2, 8, 2, 5.0))
sketch10.addConstraint(Sketcher.Constraint("DistanceY", 2, 2, 8, 2, 15.0))
sketch10.addConstraint(Sketcher.Constraint("DistanceX", 0, 2, -1, 1, 88.7508))
sketch10.addConstraint(Sketcher.Constraint("DistanceY", 0, 2, -1, 1, 11.2917))
pocket8 = doc.addObject("PartDesign::Pocket", "Pocket007")
body.addObject(pocket8)
pocket8.Profile = sketch10
pocket8.Length = 10

# Sketch on YZ plane
sketch11 = doc.addObject("Sketcher::SketchObject", "Sketch010")
body.addObject(sketch11)
sketch11.AttachmentSupport = (doc.YZ_Plane, [""])
sketch11.MapMode = "FlatFace"
sketch11.AttachmentOffset = App.Placement(V(0, 0, 3), App.Rotation())
sketch11.addGeometry(Part.LineSegment(V(36.2492, -11.2917, 0), V(39.2492, -11.2917, 0)), False)
sketch11.addGeometry(Part.LineSegment(V(39.2492, -11.2917, 0), V(39.2492, 13.7083, 0)), False)
sketch11.addGeometry(Part.LineSegment(V(39.2492, 13.7083, 0), V(36.2492, 13.7083, 0)), False)
sketch11.addGeometry(Part.LineSegment(V(36.2492, 13.7083, 0), V(36.2492, -11.2917, 0)), False)
sketch11.addGeometry(Part.LineSegment(V(-55.7508, -26.2917, 0), V(-43.2508, -26.2917, 0)), False)
sketch11.addGeometry(Part.LineSegment(V(-43.2508, -26.2917, 0), V(-43.2508, 28.7083, 0)), False)
sketch11.addGeometry(Part.LineSegment(V(-43.2508, 28.7083, 0), V(-55.7508, 28.7083, 0)), False)
sketch11.addGeometry(Part.LineSegment(V(-55.7508, 28.7083, 0), V(-55.7508, -26.2917, 0)), False)
sketch11.addGeometry(Part.LineSegment(V(-63.7508, -11.2917, 0), V(-60.7508, -11.2917, 0)), False)
sketch11.addGeometry(Part.LineSegment(V(-60.7508, -11.2917, 0), V(-60.7508, 13.7083, 0)), False)
sketch11.addGeometry(Part.LineSegment(V(-60.7508, 13.7083, 0), V(-63.7508, 13.7083, 0)), False)
sketch11.addGeometry(Part.LineSegment(V(-63.7508, 13.7083, 0), V(-63.7508, -11.2917, 0)), False)
sketch11.addConstraint(Sketcher.Constraint("Coincident", 0, 2, 1, 1))
sketch11.addConstraint(Sketcher.Constraint("Coincident", 1, 2, 2, 1))
sketch11.addConstraint(Sketcher.Constraint("Coincident", 2, 2, 3, 1))
sketch11.addConstraint(Sketcher.Constraint("Coincident", 3, 2, 0, 1))
sketch11.addConstraint(Sketcher.Constraint("Coincident", 4, 2, 5, 1))
sketch11.addConstraint(Sketcher.Constraint("Coincident", 5, 2, 6, 1))
sketch11.addConstraint(Sketcher.Constraint("Coincident", 6, 2, 7, 1))
sketch11.addConstraint(Sketcher.Constraint("Coincident", 7, 2, 4, 1))
sketch11.addConstraint(Sketcher.Constraint("Coincident", 8, 2, 9, 1))
sketch11.addConstraint(Sketcher.Constraint("Coincident", 9, 2, 10, 1))
sketch11.addConstraint(Sketcher.Constraint("Coincident", 10, 2, 11, 1))
sketch11.addConstraint(Sketcher.Constraint("Coincident", 11, 2, 8, 1))
sketch11.addConstraint(Sketcher.Constraint("Horizontal", 0))
sketch11.addConstraint(Sketcher.Constraint("Vertical", 1))
sketch11.addConstraint(Sketcher.Constraint("Horizontal", 2))
sketch11.addConstraint(Sketcher.Constraint("Vertical", 3))
sketch11.addConstraint(Sketcher.Constraint("Horizontal", 4))
sketch11.addConstraint(Sketcher.Constraint("Vertical", 5))
sketch11.addConstraint(Sketcher.Constraint("Horizontal", 6))
sketch11.addConstraint(Sketcher.Constraint("Vertical", 7))
sketch11.addConstraint(Sketcher.Constraint("Horizontal", 8))
sketch11.addConstraint(Sketcher.Constraint("Vertical", 9))
sketch11.addConstraint(Sketcher.Constraint("Horizontal", 10))
sketch11.addConstraint(Sketcher.Constraint("Vertical", 11))
sketch11.addConstraint(Sketcher.Constraint("Horizontal", 3, 2, 8, 2))
sketch11.addConstraint(Sketcher.Constraint("Horizontal", 2, 2, 9, 2))
sketch11.addConstraint(Sketcher.Constraint("Equal", 2, 8))
sketch11.addConstraint(Sketcher.Constraint("DistanceX", 0, 1, 0, 2, 3.0))
sketch11.addConstraint(Sketcher.Constraint("DistanceY", 1, 1, 1, 2, 25.0))
sketch11.addConstraint(Sketcher.Constraint("DistanceY", 5, 1, 5, 2, 55.0))
sketch11.addConstraint(Sketcher.Constraint("DistanceX", 4, 1, 4, 2, 12.5))
sketch11.addConstraint(Sketcher.Constraint("DistanceY", 4, 2, 3, 2, 15.0))
sketch11.addConstraint(Sketcher.Constraint("DistanceX", 6, 2, 2, 2, 92.0))
sketch11.addConstraint(Sketcher.Constraint("DistanceX", 8, 2, 7, 2, 5.0))
sketch11.addConstraint(Sketcher.Constraint("DistanceX", -1, 1, 0, 2, 39.2492))
sketch11.addConstraint(Sketcher.Constraint("DistanceY", 0, 2, -1, 1, 11.2917))
pad3 = doc.addObject("PartDesign::Pad", "Pad002")
body.addObject(pad3)
pad3.Profile = sketch11
pad3.Length = 3
pad3.Reversed = True

doc.recompute()
